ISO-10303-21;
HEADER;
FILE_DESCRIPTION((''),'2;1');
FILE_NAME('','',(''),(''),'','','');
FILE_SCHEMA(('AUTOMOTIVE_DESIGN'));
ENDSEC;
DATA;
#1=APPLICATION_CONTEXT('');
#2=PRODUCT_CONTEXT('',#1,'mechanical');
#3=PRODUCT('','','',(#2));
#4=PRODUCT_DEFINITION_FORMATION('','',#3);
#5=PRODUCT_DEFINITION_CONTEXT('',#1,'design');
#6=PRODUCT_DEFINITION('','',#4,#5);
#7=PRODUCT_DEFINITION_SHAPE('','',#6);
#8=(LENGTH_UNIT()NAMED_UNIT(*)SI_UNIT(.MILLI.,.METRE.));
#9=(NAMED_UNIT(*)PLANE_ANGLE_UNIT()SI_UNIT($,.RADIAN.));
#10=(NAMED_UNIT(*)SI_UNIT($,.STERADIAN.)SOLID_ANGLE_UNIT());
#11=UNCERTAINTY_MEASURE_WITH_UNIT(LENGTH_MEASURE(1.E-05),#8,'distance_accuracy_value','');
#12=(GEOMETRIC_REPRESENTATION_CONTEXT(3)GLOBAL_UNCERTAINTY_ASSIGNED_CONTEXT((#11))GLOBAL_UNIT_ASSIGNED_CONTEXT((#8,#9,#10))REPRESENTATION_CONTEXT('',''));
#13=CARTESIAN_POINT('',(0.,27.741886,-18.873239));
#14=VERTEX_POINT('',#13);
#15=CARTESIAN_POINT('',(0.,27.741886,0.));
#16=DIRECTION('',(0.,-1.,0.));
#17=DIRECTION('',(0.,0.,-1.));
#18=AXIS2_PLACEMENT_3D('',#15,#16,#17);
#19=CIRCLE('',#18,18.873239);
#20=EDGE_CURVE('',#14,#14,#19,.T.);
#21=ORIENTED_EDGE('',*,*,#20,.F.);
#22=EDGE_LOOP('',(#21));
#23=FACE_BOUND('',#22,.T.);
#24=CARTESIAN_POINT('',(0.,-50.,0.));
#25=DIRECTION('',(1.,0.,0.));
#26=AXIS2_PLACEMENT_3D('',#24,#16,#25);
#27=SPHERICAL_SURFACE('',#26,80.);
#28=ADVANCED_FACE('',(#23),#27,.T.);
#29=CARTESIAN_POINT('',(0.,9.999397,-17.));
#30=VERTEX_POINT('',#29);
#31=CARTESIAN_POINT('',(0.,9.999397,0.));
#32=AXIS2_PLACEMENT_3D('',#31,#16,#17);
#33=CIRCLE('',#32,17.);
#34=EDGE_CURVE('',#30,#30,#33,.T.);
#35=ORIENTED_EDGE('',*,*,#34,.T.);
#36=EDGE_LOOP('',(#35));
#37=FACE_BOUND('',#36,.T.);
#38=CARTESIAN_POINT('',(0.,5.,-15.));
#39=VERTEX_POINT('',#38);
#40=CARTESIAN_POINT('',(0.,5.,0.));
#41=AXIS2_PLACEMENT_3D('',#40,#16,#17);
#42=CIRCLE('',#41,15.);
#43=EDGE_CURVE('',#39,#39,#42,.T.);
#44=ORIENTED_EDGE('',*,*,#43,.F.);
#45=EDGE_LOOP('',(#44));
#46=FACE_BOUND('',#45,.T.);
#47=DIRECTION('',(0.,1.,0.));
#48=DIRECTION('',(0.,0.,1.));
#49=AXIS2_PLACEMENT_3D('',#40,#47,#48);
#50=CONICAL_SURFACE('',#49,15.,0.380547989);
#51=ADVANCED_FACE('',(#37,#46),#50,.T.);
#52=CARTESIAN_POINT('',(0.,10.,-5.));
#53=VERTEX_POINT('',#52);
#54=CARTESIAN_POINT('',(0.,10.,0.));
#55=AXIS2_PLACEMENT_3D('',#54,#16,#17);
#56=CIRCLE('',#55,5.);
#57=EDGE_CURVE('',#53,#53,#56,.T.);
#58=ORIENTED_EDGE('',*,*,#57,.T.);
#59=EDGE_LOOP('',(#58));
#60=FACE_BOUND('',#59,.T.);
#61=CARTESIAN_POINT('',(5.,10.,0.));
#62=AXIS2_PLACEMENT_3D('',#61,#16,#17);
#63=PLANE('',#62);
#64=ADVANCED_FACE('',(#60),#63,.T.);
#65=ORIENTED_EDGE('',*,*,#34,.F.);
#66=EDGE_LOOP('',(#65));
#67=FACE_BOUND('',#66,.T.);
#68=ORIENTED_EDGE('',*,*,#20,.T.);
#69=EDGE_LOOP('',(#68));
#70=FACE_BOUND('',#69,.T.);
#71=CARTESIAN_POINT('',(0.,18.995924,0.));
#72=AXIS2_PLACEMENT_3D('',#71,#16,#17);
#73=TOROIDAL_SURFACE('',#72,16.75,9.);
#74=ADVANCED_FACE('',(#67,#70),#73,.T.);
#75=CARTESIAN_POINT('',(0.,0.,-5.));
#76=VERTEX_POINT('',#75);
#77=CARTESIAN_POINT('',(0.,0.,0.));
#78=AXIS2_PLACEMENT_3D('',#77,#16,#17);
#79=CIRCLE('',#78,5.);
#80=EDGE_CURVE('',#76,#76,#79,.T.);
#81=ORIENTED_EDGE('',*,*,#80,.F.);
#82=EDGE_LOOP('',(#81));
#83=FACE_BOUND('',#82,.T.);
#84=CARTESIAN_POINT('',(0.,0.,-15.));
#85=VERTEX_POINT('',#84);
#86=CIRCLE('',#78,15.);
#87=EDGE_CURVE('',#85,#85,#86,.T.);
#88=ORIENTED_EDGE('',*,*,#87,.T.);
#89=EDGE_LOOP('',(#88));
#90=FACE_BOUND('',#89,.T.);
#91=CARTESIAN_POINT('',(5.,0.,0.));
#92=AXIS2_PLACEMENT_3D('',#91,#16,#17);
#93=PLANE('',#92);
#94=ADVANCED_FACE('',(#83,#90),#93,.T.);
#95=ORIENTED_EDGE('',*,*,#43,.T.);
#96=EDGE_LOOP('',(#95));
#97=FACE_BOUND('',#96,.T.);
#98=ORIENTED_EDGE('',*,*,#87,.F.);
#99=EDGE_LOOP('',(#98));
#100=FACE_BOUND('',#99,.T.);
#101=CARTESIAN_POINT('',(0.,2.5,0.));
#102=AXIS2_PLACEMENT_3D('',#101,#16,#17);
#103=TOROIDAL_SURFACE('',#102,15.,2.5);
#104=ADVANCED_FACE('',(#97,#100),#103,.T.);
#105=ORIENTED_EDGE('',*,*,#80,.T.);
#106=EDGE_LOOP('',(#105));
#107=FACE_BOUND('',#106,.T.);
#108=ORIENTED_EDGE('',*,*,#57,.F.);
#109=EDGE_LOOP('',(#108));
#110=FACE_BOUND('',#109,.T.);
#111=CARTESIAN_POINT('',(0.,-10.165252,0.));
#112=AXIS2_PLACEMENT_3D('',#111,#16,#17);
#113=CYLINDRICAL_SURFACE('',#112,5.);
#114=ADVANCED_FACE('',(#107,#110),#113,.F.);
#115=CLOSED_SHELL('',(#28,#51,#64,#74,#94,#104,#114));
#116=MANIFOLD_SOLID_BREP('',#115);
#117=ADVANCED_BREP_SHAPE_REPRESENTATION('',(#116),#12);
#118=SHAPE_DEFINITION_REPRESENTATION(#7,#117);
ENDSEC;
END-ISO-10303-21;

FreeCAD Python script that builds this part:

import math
import FreeCAD as App
import Part
import Sketcher
from FreeCAD import Vector
Q = App.Units.Quantity

doc = App.newDocument("Part")
body = doc.addObject("PartDesign::Body", "Body")

sketch1 = body.newObject("Sketcher::SketchObject", "Sketch")
sketch1.AttachmentSupport = (doc.getObject("XY_Plane"), [""])
sketch1.MapMode = "FlatFace"
sketch1.addGeometry(Part.LineSegment(Vector(5, 0, 0), Vector(15, 0, 0)), False)
sketch1.addGeometry(Part.ArcOfCircle(Part.Circle(Vector(15, 2.5, 0), Vector(0, 0, 1), 2.5), math.radians(-90), math.radians(90)), False)
sketch1.addGeometry(Part.LineSegment(Vector(15, 5, 0), Vector(17, 10, 0)), False)
sketch1.addGeometry(Part.ArcOfCircle(Part.Circle(Vector(16.8, 19, 0), Vector(0, 0, 1), 9), math.radians(-88), math.radians(76)), False)
sketch1.addGeometry(Part.ArcOfCircle(Part.Circle(Vector(0, -50, 0), Vector(0, 0, 1), 80), math.radians(76.35), math.radians(90)), False)
sketch1.addGeometry(Part.LineSegment(Vector(0, 30, 0), Vector(0, 10, 0)), False)
sketch1.addGeometry(Part.LineSegment(Vector(0, 10, 0), Vector(5, 10, 0)), False)
sketch1.addGeometry(Part.LineSegment(Vector(5, 10, 0), Vector(5, 0, 0)), False)
sketch1.addConstraint(Sketcher.Constraint("Tangent", 0, 2, 1, 1))
sketch1.addConstraint(Sketcher.Constraint("Coincident", 1, 2, 2, 1))
sketch1.addConstraint(Sketcher.Constraint("Coincident", 2, 2, 3, 1))
sketch1.addConstraint(Sketcher.Constraint("Tangent", 3, 2, 4, 1))
sketch1.addConstraint(Sketcher.Constraint("Coincident", 4, 2, 5, 1))
sketch1.addConstraint(Sketcher.Constraint("Coincident", 5, 2, 6, 1))
sketch1.addConstraint(Sketcher.Constraint("Coincident", 6, 2, 7, 1))
sketch1.addConstraint(Sketcher.Constraint("Coincident", 7, 2, 0, 1))
sketch1.addConstraint(Sketcher.Constraint("Horizontal", 0))
sketch1.addConstraint(Sketcher.Constraint("Vertical", 5))
sketch1.addConstraint(Sketcher.Constraint("Horizontal", 6))
sketch1.addConstraint(Sketcher.Constraint("Vertical", 7))
sketch1.addConstraint(Sketcher.Constraint("PointOnObject", 4, 3, -2))
sketch1.addConstraint(Sketcher.Constraint("PointOnObject", 0, 2, -1))
sketch1.addConstraint(Sketcher.Constraint("PointOnObject", 4, 2, -2))
sketch1.addConstraint(Sketcher.Constraint("Vertical", 0, 2, 1, 2))
sketch1.addConstraint(Sketcher.Constraint("Equal", 0, 7))
sketch1.addConstraint(Sketcher.Constraint("Radius", 3, Q("9 mm")))
sketch1.addConstraint(Sketcher.Constraint("Radius", 4, Q("80 mm")))
sketch1.addConstraint(Sketcher.Constraint("Radius", 1, Q("2.5 mm")))
sketch1.addConstraint(Sketcher.Constraint("DistanceX", 0, 1, 0, 2, Q("10 mm")))
sketch1.addConstraint(Sketcher.Constraint("DistanceX", 6, 1, 6, 2, Q("5 mm")))
sketch1.addConstraint(Sketcher.Constraint("DistanceY", 5, 2, 5, 1, Q("20 mm")))
sketch1.addConstraint(Sketcher.Constraint("DistanceX", -1, 1, 2, 2, Q("17 mm")))
sketch1.addConstraint(Sketcher.Constraint("DistanceX", -1, 1, 3, 3, Q("16.75 mm")))
revolution = body.newObject("PartDesign::Revolution", "Revolution")
revolution.Profile = sketch1
revolution.ReferenceAxis = (sketch1, ["V_Axis"])
revolution.Angle = 360

doc.recompute()
